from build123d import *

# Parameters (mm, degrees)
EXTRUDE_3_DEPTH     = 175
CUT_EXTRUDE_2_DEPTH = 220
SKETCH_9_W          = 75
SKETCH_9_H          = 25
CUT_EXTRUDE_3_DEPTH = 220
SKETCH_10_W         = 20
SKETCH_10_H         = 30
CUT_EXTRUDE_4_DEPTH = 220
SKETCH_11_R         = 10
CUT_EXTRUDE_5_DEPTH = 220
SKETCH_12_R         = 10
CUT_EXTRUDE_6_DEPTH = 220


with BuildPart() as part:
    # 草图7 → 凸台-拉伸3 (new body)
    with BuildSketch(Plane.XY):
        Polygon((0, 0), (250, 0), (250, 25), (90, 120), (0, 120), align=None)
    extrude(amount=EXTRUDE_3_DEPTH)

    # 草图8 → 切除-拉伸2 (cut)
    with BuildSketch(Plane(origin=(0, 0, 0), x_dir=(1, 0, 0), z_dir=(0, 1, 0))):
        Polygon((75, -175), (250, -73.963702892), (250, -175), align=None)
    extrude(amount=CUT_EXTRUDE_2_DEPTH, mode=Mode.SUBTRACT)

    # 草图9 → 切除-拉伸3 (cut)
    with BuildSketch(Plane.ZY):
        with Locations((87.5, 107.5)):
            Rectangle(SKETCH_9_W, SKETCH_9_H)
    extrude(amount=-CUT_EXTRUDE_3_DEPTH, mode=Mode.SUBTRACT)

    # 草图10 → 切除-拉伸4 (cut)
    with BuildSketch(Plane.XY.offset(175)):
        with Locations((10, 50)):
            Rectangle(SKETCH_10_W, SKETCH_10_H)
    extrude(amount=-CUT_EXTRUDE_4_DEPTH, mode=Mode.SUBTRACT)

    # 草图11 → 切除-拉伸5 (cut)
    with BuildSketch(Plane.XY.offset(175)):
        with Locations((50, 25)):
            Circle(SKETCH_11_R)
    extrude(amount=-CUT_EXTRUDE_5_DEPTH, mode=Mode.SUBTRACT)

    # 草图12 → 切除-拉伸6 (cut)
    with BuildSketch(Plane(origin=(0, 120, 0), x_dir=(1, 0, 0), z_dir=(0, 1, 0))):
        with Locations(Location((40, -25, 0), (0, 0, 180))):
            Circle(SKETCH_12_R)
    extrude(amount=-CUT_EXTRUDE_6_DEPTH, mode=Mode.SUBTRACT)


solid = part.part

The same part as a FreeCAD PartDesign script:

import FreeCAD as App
import Part
import Sketcher

V = App.Vector
Q = App.Units.Quantity

doc = App.newDocument("Part")
params = doc.addObject("Spreadsheet::Sheet", "Params")
for row, (alias, value) in enumerate([
    ("sketch1_width", "250 mm"),
    ("sketch1_width2", "90 mm"),
    ("sketch1_height", "25 mm"),
    ("sketch1_height2", "120 mm"),
    ("pad1_length", "175 mm"),
    ("sketch2_width", "175 mm"),
    ("pocket1_length", "220 mm"),
    ("sketch3_width", "25 mm"),
    ("sketch3_height", "75 mm"),
    ("pocket2_length", "220 mm"),
    ("sketch4_width", "20 mm"),
    ("sketch4_height", "30 mm"),
    ("pocket3_length", "220 mm"),
    ("sketch5_diameter", "20 mm"),
    ("pocket4_length", "220 mm"),
    ("sketch6_diameter", "20 mm"),
    ("pocket5_length", "220 mm"),
], start=1):
    params.set(f"A{row}", alias)
    params.set(f"B{row}", "=" + value)
    params.setAlias(f"B{row}", alias)

body = doc.addObject("PartDesign::Body", "Body")

# Sketch on XY plane
sketch1 = body.newObject("Sketcher::SketchObject", "Sketch")
sketch1.AttachmentSupport = (doc.getObject("XY_Plane"), [""])
sketch1.MapMode = "FlatFace"
sketch1.addGeometry(Part.LineSegment(V(0, 0, 0), V(250, 0, 0)), False)
sketch1.addGeometry(Part.LineSegment(V(250, 0, 0), V(250, 25, 0)), False)
sketch1.addGeometry(Part.LineSegment(V(250, 25, 0), V(90, 120, 0)), False)
sketch1.addGeometry(Part.LineSegment(V(90, 120, 0), V(0, 120, 0)), False)
sketch1.addGeometry(Part.LineSegment(V(0, 120, 0), V(0, 0, 0)), False)
sketch1.addConstraint(Sketcher.Constraint("Coincident", 0, 2, 1, 1))
sketch1.addConstraint(Sketcher.Constraint("Coincident", 1, 2, 2, 1))
sketch1.addConstraint(Sketcher.Constraint("Coincident", 2, 2, 3, 1))
sketch1.addConstraint(Sketcher.Constraint("Coincident", 3, 2, 4, 1))
sketch1.addConstraint(Sketcher.Constraint("Coincident", 4, 2, 0, 1))
sketch1.addConstraint(Sketcher.Constraint("Horizontal", 0))
sketch1.addConstraint(Sketcher.Constraint("Vertical", 1))
sketch1.addConstraint(Sketcher.Constraint("Horizontal", 3))
sketch1.addConstraint(Sketcher.Constraint("Vertical", 4))
sketch1.addConstraint(Sketcher.Constraint("Coincident", 4, 2, -1, 1))
sketch1.addConstraint(Sketcher.Constraint("DistanceX", 0, 1, 0, 2, 250.0))
sketch1.addConstraint(Sketcher.Constraint("DistanceX", 3, 2, 3, 1, 90.0))
sketch1.addConstraint(Sketcher.Constraint("DistanceY", 1, 1, 1, 2, 25.0))
sketch1.addConstraint(Sketcher.Constraint("DistanceY", 4, 2, 4, 1, 120.0))
sketch1.setExpression("Constraints[10]", "Params.sketch1_width")
sketch1.setExpression("Constraints[11]", "Params.sketch1_width2")
sketch1.setExpression("Constraints[12]", "Params.sketch1_height")
sketch1.setExpression("Constraints[13]", "Params.sketch1_height2")
pad1 = body.newObject("PartDesign::Pad", "Pad")
pad1.Profile = sketch1
pad1.setExpression("Length", "Params.pad1_length")

# Sketch on XZ plane
sketch2 = body.newObject("Sketcher::SketchObject", "Sketch001")
sketch2.AttachmentSupport = (doc.getObject("XZ_Plane"), [""])
sketch2.MapMode = "FlatFace"
sketch2.addGeometry(Part.LineSegment(V(250, 73.963703, 0), V(75, 175, 0)), False)
sketch2.addGeometry(Part.LineSegment(V(75, 175, 0), V(250, 175, 0)), False)
sketch2.addGeometry(Part.LineSegment(V(250, 175, 0), V(250, 73.963703, 0)), False)
sketch2.addConstraint(Sketcher.Constraint("Coincident", 0, 2, 1, 1))
sketch2.addConstraint(Sketcher.Constraint("Coincident", 1, 2, 2, 1))
sketch2.addConstraint(Sketcher.Constraint("Coincident", 2, 2, 0, 1))
sketch2.addConstraint(Sketcher.Constraint("Horizontal", 1))
sketch2.addConstraint(Sketcher.Constraint("Vertical", 2))
sketch2.addConstraint(Sketcher.Constraint("DistanceX", 1, 1, 1, 2, 175.0))
sketch2.addConstraint(Sketcher.Constraint("Angle", 0, Q("150 deg")))
sketch2.addConstraint(Sketcher.Constraint("DistanceX", -1, 1, 0, 2, 75.0))
sketch2.addConstraint(Sketcher.Constraint("DistanceY", -1, 1, 0, 2, 175.0))
sketch2.setExpression("Constraints[5]", "Params.sketch2_width")
pocket1 = body.newObject("PartDesign::Pocket", "Pocket")
pocket1.Profile = sketch2
pocket1.setExpression("Length", "Params.pocket1_length")

# Sketch on YZ plane
sketch3 = body.newObject("Sketcher::SketchObject", "Sketch002")
sketch3.AttachmentSupport = (doc.getObject("YZ_Plane"), [""])
sketch3.MapMode = "FlatFace"
sketch3.addGeometry(Part.LineSegment(V(120, 50, 0), V(95, 50, 0)), False)
sketch3.addGeometry(Part.LineSegment(V(95, 50, 0), V(95, 125, 0)), False)
sketch3.addGeometry(Part.LineSegment(V(95, 125, 0), V(120, 125, 0)), False)
sketch3.addGeometry(Part.LineSegment(V(120, 125, 0), V(120, 50, 0)), False)
sketch3.addConstraint(Sketcher.Constraint("Coincident", 0, 2, 1, 1))
sketch3.addConstraint(Sketcher.Constraint("Coincident", 1, 2, 2, 1))
sketch3.addConstraint(Sketcher.Constraint("Coincident", 2, 2, 3, 1))
sketch3.addConstraint(Sketcher.Constraint("Coincident", 3, 2, 0, 1))
sketch3.addConstraint(Sketcher.Constraint("Horizontal", 0))
sketch3.addConstraint(Sketcher.Constraint("Vertical", 1))
sketch3.addConstraint(Sketcher.Constraint("Horizontal", 2))
sketch3.addConstraint(Sketcher.Constraint("Vertical", 3))
sketch3.addConstraint(Sketcher.Constraint("DistanceX", 0, 2, 0, 1, 25.0))
sketch3.addConstraint(Sketcher.Constraint("DistanceY", 1, 1, 1, 2, 75.0))
sketch3.addConstraint(Sketcher.Constraint("DistanceX", -1, 1, 0, 2, 95.0))
sketch3.addConstraint(Sketcher.Constraint("DistanceY", -1, 1, 0, 2, 50.0))
sketch3.setExpression("Constraints[8]", "Params.sketch3_width")
sketch3.setExpression("Constraints[9]", "Params.sketch3_height")
pocket2 = body.newObject("PartDesign::Pocket", "Pocket001")
pocket2.Profile = sketch3
pocket2.setExpression("Length", "Params.pocket2_length")
pocket2.Reversed = True

# Sketch on XY plane
sketch4 = body.newObject("Sketcher::SketchObject", "Sketch003")
sketch4.AttachmentSupport = (doc.getObject("XY_Plane"), [""])
sketch4.MapMode = "FlatFace"
sketch4.AttachmentOffset = App.Placement(V(0, 0, 175), App.Rotation())
sketch4.addGeometry(Part.LineSegment(V(0, 65, 0), V(0, 35, 0)), False)
sketch4.addGeometry(Part.LineSegment(V(0, 35, 0), V(20, 35, 0)), False)
sketch4.addGeometry(Part.LineSegment(V(20, 35, 0), V(20, 65, 0)), False)
sketch4.addGeometry(Part.LineSegment(V(20, 65, 0), V(0, 65, 0)), False)
sketch4.addConstraint(Sketcher.Constraint("Coincident", 0, 2, 1, 1))
sketch4.addConstraint(Sketcher.Constraint("Coincident", 1, 2, 2, 1))
sketch4.addConstraint(Sketcher.Constraint("Coincident", 2, 2, 3, 1))
sketch4.addConstraint(Sketcher.Constraint("Coincident", 3, 2, 0, 1))
sketch4.addConstraint(Sketcher.Constraint("Vertical", 0))
sketch4.addConstraint(Sketcher.Constraint("Horizontal", 1))
sketch4.addConstraint(Sketcher.Constraint("Vertical", 2))
sketch4.addConstraint(Sketcher.Constraint("Horizontal", 3))
sketch4.addConstraint(Sketcher.Constraint("PointOnObject", 0, 2, -2))
sketch4.addConstraint(Sketcher.Constraint("DistanceX", 1, 1, 1, 2, 20.0))
sketch4.addConstraint(Sketcher.Constraint("DistanceY", 0, 2, 0, 1, 30.0))
sketch4.addConstraint(Sketcher.Constraint("DistanceY", -1, 1, 0, 2, 35.0))
sketch4.setExpression("Constraints[9]", "Params.sketch4_width")
sketch4.setExpression("Constraints[10]", "Params.sketch4_height")
pocket3 = body.newObject("PartDesign::Pocket", "Pocket002")
pocket3.Profile = sketch4
pocket3.setExpression("Length", "Params.pocket3_length")

# Sketch on XY plane
sketch5 = body.newObject("Sketcher::SketchObject", "Sketch004")
sketch5.AttachmentSupport = (doc.getObject("XY_Plane"), [""])
sketch5.MapMode = "FlatFace"
sketch5.AttachmentOffset = App.Placement(V(0, 0, 175), App.Rotation())
sketch5.addGeometry(Part.Circle(V(50, 25, 0), V(0, 0, 1), 10), False)
sketch5.addConstraint(Sketcher.Constraint("Diameter", 0, 20.0))
sketch5.addConstraint(Sketcher.Constraint("DistanceX", -1, 1, 0, 3, 50.0))
sketch5.addConstraint(Sketcher.Constraint("DistanceY", -1, 1, 0, 3, 25.0))
sketch5.setExpression("Constraints[0]", "Params.sketch5_diameter")
pocket4 = body.newObject("PartDesign::Pocket", "Pocket003")
pocket4.Profile = sketch5
pocket4.setExpression("Length", "Params.pocket4_length")

# Sketch on XZ plane
sketch6 = body.newObject("Sketcher::SketchObject", "Sketch005")
sketch6.AttachmentSupport = (doc.getObject("XZ_Plane"), [""])
sketch6.MapMode = "FlatFace"
sketch6.AttachmentOffset = App.Placement(V(0, 0, -120), App.Rotation())
sketch6.addGeometry(Part.Circle(V(40, 25, 0), V(0, 0, 1), 10), False)
sketch6.addConstraint(Sketcher.Constraint("Diameter", 0, 20.0))
sketch6.addConstraint(Sketcher.Constraint("DistanceX", -1, 1, 0, 3, 40.0))
sketch6.addConstraint(Sketcher.Constraint("DistanceY", -1, 1, 0, 3, 25.0))
sketch6.setExpression("Constraints[0]", "Params.sketch6_diameter")
pocket5 = body.newObject("PartDesign::Pocket", "Pocket004")
pocket5.Profile = sketch6
pocket5.setExpression("Length", "Params.pocket5_length")
pocket5.Reversed = True

doc.recompute()
